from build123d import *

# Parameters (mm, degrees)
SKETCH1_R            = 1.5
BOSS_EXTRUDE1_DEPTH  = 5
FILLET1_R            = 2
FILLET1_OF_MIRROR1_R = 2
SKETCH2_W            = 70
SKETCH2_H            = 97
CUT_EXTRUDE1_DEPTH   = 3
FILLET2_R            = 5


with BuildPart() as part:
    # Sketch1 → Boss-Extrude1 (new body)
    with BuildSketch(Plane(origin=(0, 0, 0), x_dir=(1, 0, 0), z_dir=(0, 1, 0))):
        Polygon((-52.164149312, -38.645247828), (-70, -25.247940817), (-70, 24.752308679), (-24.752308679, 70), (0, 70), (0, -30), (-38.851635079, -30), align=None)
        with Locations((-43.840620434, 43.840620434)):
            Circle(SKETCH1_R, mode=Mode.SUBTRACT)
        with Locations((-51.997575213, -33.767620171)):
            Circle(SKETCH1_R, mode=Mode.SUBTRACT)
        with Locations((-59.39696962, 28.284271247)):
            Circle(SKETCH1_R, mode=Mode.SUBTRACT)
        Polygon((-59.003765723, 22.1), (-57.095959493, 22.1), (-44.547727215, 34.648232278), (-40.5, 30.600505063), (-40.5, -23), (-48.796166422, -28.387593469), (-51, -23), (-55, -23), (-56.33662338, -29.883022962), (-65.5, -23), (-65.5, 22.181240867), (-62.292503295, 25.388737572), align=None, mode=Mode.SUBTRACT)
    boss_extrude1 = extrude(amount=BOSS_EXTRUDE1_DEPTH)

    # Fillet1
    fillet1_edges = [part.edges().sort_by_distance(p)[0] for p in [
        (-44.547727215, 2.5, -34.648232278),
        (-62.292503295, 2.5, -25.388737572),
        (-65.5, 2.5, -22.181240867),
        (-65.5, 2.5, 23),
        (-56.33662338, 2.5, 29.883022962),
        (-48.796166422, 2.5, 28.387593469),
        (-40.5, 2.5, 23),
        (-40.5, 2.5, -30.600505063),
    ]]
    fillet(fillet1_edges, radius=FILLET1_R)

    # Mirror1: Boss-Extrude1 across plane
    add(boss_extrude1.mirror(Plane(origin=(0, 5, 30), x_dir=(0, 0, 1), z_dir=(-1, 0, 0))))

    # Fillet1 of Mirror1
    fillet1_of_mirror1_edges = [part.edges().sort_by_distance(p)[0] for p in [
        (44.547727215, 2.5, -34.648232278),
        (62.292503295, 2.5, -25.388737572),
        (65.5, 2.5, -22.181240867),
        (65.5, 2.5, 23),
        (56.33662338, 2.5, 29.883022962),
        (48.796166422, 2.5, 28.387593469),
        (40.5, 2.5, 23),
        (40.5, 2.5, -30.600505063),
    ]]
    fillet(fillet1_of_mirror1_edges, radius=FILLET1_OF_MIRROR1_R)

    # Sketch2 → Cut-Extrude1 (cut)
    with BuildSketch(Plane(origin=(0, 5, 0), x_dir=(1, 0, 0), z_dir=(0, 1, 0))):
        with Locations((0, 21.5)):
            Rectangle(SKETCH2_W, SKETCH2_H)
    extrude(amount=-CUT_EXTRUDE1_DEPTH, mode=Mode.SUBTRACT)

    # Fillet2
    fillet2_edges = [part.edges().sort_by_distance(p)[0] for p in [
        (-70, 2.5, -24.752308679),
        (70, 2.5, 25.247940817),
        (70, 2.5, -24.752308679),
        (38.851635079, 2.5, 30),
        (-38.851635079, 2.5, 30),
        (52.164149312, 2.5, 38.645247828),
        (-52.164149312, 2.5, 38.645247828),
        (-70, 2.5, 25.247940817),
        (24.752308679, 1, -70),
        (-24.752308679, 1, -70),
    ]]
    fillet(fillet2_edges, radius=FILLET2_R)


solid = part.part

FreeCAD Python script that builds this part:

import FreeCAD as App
import Part
import Sketcher
Q = App.Units.Quantity


def edges_at(feature, points):
    """Names of the edges that pass closest to the given points."""
    edges = feature.Shape.Edges
    near = lambda p: min(range(len(edges)), key=lambda i: edges[i].distToShape(Part.Vertex(*p))[0])
    return sorted({f"Edge{near(p) + 1}" for p in points})

doc = App.newDocument("Part")
params = doc.addObject("Spreadsheet::Sheet", "Params")
for row, (alias, value) in enumerate([
    ("sketch1_diameter", "3 mm"),
    ("sketch1_width", "4 mm"),
    ("sketch1_height", "100 mm"),
    ("pad1_length", "5 mm"),
    ("fillet_radius", "2 mm"),
    ("fillet2_radius", "2 mm"),
    ("sketch2_width", "70 mm"),
    ("sketch2_height", "97 mm"),
    ("pocket1_length", "3 mm"),
    ("fillet3_radius", "5 mm"),
], start=1):
    params.set(f"A{row}", alias)
    params.set(f"B{row}", "=" + value)
    params.setAlias(f"B{row}", alias)

body = doc.addObject("PartDesign::Body", "Body")

# Sketch on XZ plane
sketch1 = body.newObject("Sketcher::SketchObject", "Sketch")
sketch1.AttachmentSupport = (doc.getObject("XZ_Plane"), [""])
sketch1.MapMode = "FlatFace"
sketch1.addGeometry(Part.LineSegment(App.Vector(-70, 25.2, 0), App.Vector(-52.2, 38.6, 0)), False)
sketch1.addGeometry(Part.LineSegment(App.Vector(-52.2, 38.6, 0), App.Vector(-38.9, 30, 0)), False)
sketch1.addGeometry(Part.LineSegment(App.Vector(-38.9, 30, 0), App.Vector(0, 30, 0)), False)
sketch1.addGeometry(Part.LineSegment(App.Vector(0, 30, 0), App.Vector(0, -70, 0)), False)
sketch1.addGeometry(Part.LineSegment(App.Vector(0, -70, 0), App.Vector(-24.8, -70, 0)), False)
sketch1.addGeometry(Part.LineSegment(App.Vector(-24.8, -70, 0), App.Vector(-70, -24.8, 0)), False)
sketch1.addGeometry(Part.LineSegment(App.Vector(-70, -24.8, 0), App.Vector(-70, 25.2, 0)), False)
sketch1.addGeometry(Part.Circle(App.Vector(-52, 33.8, 0), App.Vector(0, 0, 1), 1.5), False)
sketch1.addGeometry(Part.LineSegment(App.Vector(-59, -22.1, 0), App.Vector(-57.1, -22.1, 0)), False)
sketch1.addGeometry(Part.LineSegment(App.Vector(-57.1, -22.1, 0), App.Vector(-44.5, -34.6, 0)), False)
sketch1.addGeometry(Part.LineSegment(App.Vector(-44.5, -34.6, 0), App.Vector(-40.5, -30.6, 0)), False)
sketch1.addGeometry(Part.LineSegment(App.Vector(-40.5, -30.6, 0), App.Vector(-40.5, 23, 0)), False)
sketch1.addGeometry(Part.LineSegment(App.Vector(-40.5, 23, 0), App.Vector(-48.8, 28.4, 0)), False)
sketch1.addGeometry(Part.LineSegment(App.Vector(-48.8, 28.4, 0), App.Vector(-51, 23, 0)), False)
sketch1.addGeometry(Part.LineSegment(App.Vector(-51, 23, 0), App.Vector(-55, 23, 0)), False)
sketch1.addGeometry(Part.LineSegment(App.Vector(-55, 23, 0), App.Vector(-56.3, 29.9, 0)), False)
sketch1.addGeometry(Part.LineSegment(App.Vector(-56.3, 29.9, 0), App.Vector(-65.5, 23, 0)), False)
sketch1.addGeometry(Part.LineSegment(App.Vector(-65.5, 23, 0), App.Vector(-65.5, -22.2, 0)), False)
sketch1.addGeometry(Part.LineSegment(App.Vector(-65.5, -22.2, 0), App.Vector(-62.3, -25.4, 0)), False)
sketch1.addGeometry(Part.LineSegment(App.Vector(-62.3, -25.4, 0), App.Vector(-59, -22.1, 0)), False)
sketch1.addGeometry(Part.Circle(App.Vector(-43.8, -43.8, 0), App.Vector(0, 0, 1), 1.5), False)
sketch1.addGeometry(Part.Circle(App.Vector(-59.4, -28.3, 0), App.Vector(0, 0, 1), 1.5), False)
sketch1.addConstraint(Sketcher.Constraint("Coincident", 0, 2, 1, 1))
sketch1.addConstraint(Sketcher.Constraint("Coincident", 1, 2, 2, 1))
sketch1.addConstraint(Sketcher.Constraint("Coincident", 2, 2, 3, 1))
sketch1.addConstraint(Sketcher.Constraint("Coincident", 3, 2, 4, 1))
sketch1.addConstraint(Sketcher.Constraint("Coincident", 4, 2, 5, 1))
sketch1.addConstraint(Sketcher.Constraint("Coincident", 5, 2, 6, 1))
sketch1.addConstraint(Sketcher.Constraint("Coincident", 6, 2, 0, 1))
sketch1.addConstraint(Sketcher.Constraint("Coincident", 8, 2, 9, 1))
sketch1.addConstraint(Sketcher.Constraint("Coincident", 9, 2, 10, 1))
sketch1.addConstraint(Sketcher.Constraint("Coincident", 10, 2, 11, 1))
sketch1.addConstraint(Sketcher.Constraint("Coincident", 11, 2, 12, 1))
sketch1.addConstraint(Sketcher.Constraint("Coincident", 12, 2, 13, 1))
sketch1.addConstraint(Sketcher.Constraint("Coincident", 13, 2, 14, 1))
sketch1.addConstraint(Sketcher.Constraint("Coincident", 14, 2, 15, 1))
sketch1.addConstraint(Sketcher.Constraint("Coincident", 15, 2, 16, 1))
sketch1.addConstraint(Sketcher.Constraint("Coincident", 16, 2, 17, 1))
sketch1.addConstraint(Sketcher.Constraint("Coincident", 17, 2, 18, 1))
sketch1.addConstraint(Sketcher.Constraint("Coincident", 18, 2, 19, 1))
sketch1.addConstraint(Sketcher.Constraint("Coincident", 19, 2, 8, 1))
sketch1.addConstraint(Sketcher.Constraint("Horizontal", 2))
sketch1.addConstraint(Sketcher.Constraint("Vertical", 3))
sketch1.addConstraint(Sketcher.Constraint("Horizontal", 4))
sketch1.addConstraint(Sketcher.Constraint("Vertical", 6))
sketch1.addConstraint(Sketcher.Constraint("Horizontal", 8))
sketch1.addConstraint(Sketcher.Constraint("Vertical", 11))
sketch1.addConstraint(Sketcher.Constraint("Horizontal", 14))
sketch1.addConstraint(Sketcher.Constraint("Vertical", 17))
sketch1.addConstraint(Sketcher.Constraint("Equal", 7, 20))
sketch1.addConstraint(Sketcher.Constraint("Equal", 20, 21))
sketch1.addConstraint(Sketcher.Constraint("PointOnObject", 2, 2, -2))
sketch1.addConstraint(Sketcher.Constraint("Parallel", 5, 9))
sketch1.addConstraint(Sketcher.Constraint("Perpendicular", 9, 10))
sketch1.addConstraint(Sketcher.Constraint("Parallel", 1, 12))
sketch1.addConstraint(Sketcher.Constraint("Parallel", 0, 16))
sketch1.addConstraint(Sketcher.Constraint("Perpendicular", 10, 18))
sketch1.addConstraint(Sketcher.Constraint("Perpendicular", 18, 19))
sketch1.addConstraint(Sketcher.Constraint("Horizontal", 11, 2, 13, 2))
sketch1.addConstraint(Sketcher.Constraint("Horizontal", 14, 2, 16, 2))
sketch1.addConstraint(Sketcher.Constraint("Diameter", 7, Q("3 mm")))
sketch1.addConstraint(Sketcher.Constraint("DistanceX", 14, 2, 14, 1, Q("4 mm")))
sketch1.addConstraint(Sketcher.Constraint("DistanceY", 3, 2, 3, 1, Q("100 mm")))
sketch1.addConstraint(Sketcher.Constraint("Angle", 1, Q("-33 deg")))
sketch1.addConstraint(Sketcher.Constraint("Angle", 5, Q("135 deg")))
sketch1.addConstraint(Sketcher.Constraint("DistanceY", -1, 1, 1, 2, Q("30 mm")))
sketch1.addConstraint(Sketcher.Constraint("DistanceX", 5, 2, -1, 1, Q("70 mm")))
sketch1.addConstraint(Sketcher.Constraint("DistanceY", -1, 1, 11, 2, Q("23 mm")))
sketch1.addConstraint(Sketcher.Constraint("DistanceX", 13, 2, -1, 1, Q("51 mm")))
sketch1.addConstraint(Sketcher.Constraint("DistanceX", 17, 2, 10, 2, Q("25 mm")))
sketch1.addConstraint(Sketcher.Constraint("DistanceY", 8, 2, -1, 1, Q("22.1 mm")))
sketch1.addConstraint(Sketcher.Constraint("DistanceX", 10, 2, -1, 1, Q("40.5 mm")))
sketch1.addConstraint(Sketcher.Constraint("Distance", 5, Q("63.989899 mm")))
sketch1.addConstraint(Sketcher.Constraint("DistanceY", 6, 1, 6, 2, Q("50.000249 mm")))
sketch1.addConstraint(Sketcher.Constraint("DistanceY", 17, 2, 17, 1, Q("45.181241 mm")))
sketch1.addConstraint(Sketcher.Constraint("Distance", 0, Q("22.307071 mm")))
sketch1.addConstraint(Sketcher.Constraint("Distance", 9, Q("17.74588 mm")))
sketch1.addConstraint(Sketcher.Constraint("Distance", 10, Q("5.724351 mm")))
sketch1.addConstraint(Sketcher.Constraint("Distance", 16, Q("11.460518 mm")))
sketch1.addConstraint(Sketcher.Constraint("DistanceX", 2, 1, 2, 2, Q("38.851635 mm")))
sketch1.addConstraint(Sketcher.Constraint("DistanceX", 8, 1, 8, 2, Q("1.907806 mm")))
sketch1.addConstraint(Sketcher.Constraint("DistanceY", -1, 1, 7, 3, Q("33.76762 mm")))
sketch1.addConstraint(Sketcher.Constraint("DistanceX", 20, 3, -1, 1, Q("43.84062 mm")))
sketch1.addConstraint(Sketcher.Constraint("DistanceY", 20, 3, -1, 1, Q("43.84062 mm")))
sketch1.addConstraint(Sketcher.Constraint("DistanceX", 21, 3, -1, 1, Q("59.39697 mm")))
sketch1.addConstraint(Sketcher.Constraint("DistanceY", 21, 3, -1, 1, Q("28.284271 mm")))
sketch1.addConstraint(Sketcher.Constraint("DistanceX", 7, 3, 1, 2, Q("13.14594 mm")))
sketch1.addConstraint(Sketcher.Constraint("DistanceX", 7, 3, 12, 2, Q("3.201409 mm")))
sketch1.setExpression("Constraints[38]", "Params.sketch1_diameter")
sketch1.setExpression("Constraints[39]", "Params.sketch1_width")
sketch1.setExpression("Constraints[40]", "Params.sketch1_height")
pad1 = body.newObject("PartDesign::Pad", "Pad")
pad1.Profile = sketch1
pad1.setExpression("Length", "Params.pad1_length")
pad1.Reversed = True
doc.recompute()

fillet = body.newObject("PartDesign::Fillet", "Fillet")
fillet.Base = (pad1, edges_at(pad1, [
    (-44.548, 2.5, -34.648),
    (-62.293, 2.5, -25.389),
    (-65.5, 2.5, -22.181),
    (-65.5, 2.5, 23),
    (-56.337, 2.5, 29.883),
    (-48.796, 2.5, 28.388),
    (-40.5, 2.5, 23),
    (-40.5, 2.5, -30.601),
]))
fillet.setExpression("Radius", "Params.fillet_radius")
doc.recompute()

mirrored = body.newObject("PartDesign::Mirrored", "Mirrored")
mirrored.Originals = [pad1]
mirrored.MirrorPlane = (doc.getObject("YZ_Plane"), [""])
body.Tip = mirrored
doc.recompute()

fillet2 = body.newObject("PartDesign::Fillet", "Fillet001")
fillet2.Base = (mirrored, edges_at(mirrored, [
    (44.548, 2.5, -34.648),
    (62.293, 2.5, -25.389),
    (65.5, 2.5, -22.181),
    (65.5, 2.5, 23),
    (56.337, 2.5, 29.883),
    (48.796, 2.5, 28.388),
    (40.5, 2.5, 23),
    (40.5, 2.5, -30.601),
]))
fillet2.setExpression("Radius", "Params.fillet2_radius")

# Sketch on XZ plane
sketch2 = body.newObject("Sketcher::SketchObject", "Sketch001")
sketch2.AttachmentSupport = (doc.getObject("XZ_Plane"), [""])
sketch2.MapMode = "FlatFace"
sketch2.AttachmentOffset = App.Placement(App.Vector(0, 0, -5), App.Rotation())
sketch2.addGeometry(Part.LineSegment(App.Vector(-35, -70, 0), App.Vector(-35, 27, 0)), False)
sketch2.addGeometry(Part.LineSegment(App.Vector(-35, 27, 0), App.Vector(35, 27, 0)), False)
sketch2.addGeometry(Part.LineSegment(App.Vector(35, 27, 0), App.Vector(35, -70, 0)), False)
sketch2.addGeometry(Part.LineSegment(App.Vector(35, -70, 0), App.Vector(-35, -70, 0)), False)
sketch2.addConstraint(Sketcher.Constraint("Coincident", 0, 2, 1, 1))
sketch2.addConstraint(Sketcher.Constraint("Coincident", 1, 2, 2, 1))
sketch2.addConstraint(Sketcher.Constraint("Coincident", 2, 2, 3, 1))
sketch2.addConstraint(Sketcher.Constraint("Coincident", 3, 2, 0, 1))
sketch2.addConstraint(Sketcher.Constraint("Vertical", 0))
sketch2.addConstraint(Sketcher.Constraint("Horizontal", 1))
sketch2.addConstraint(Sketcher.Constraint("Vertical", 2))
sketch2.addConstraint(Sketcher.Constraint("Horizontal", 3))
sketch2.addConstraint(Sketcher.Constraint("DistanceX", 1, 1, 1, 2, Q("70 mm")))
sketch2.addConstraint(Sketcher.Constraint("DistanceY", 0, 1, 0, 2, Q("97 mm")))
sketch2.addConstraint(Sketcher.Constraint("DistanceX", 0, 2, -1, 1, Q("35 mm")))
sketch2.addConstraint(Sketcher.Constraint("DistanceY", -1, 1, 0, 2, Q("27 mm")))
sketch2.setExpression("Constraints[8]", "Params.sketch2_width")
sketch2.setExpression("Constraints[9]", "Params.sketch2_height")
pocket1 = body.newObject("PartDesign::Pocket", "Pocket")
pocket1.Profile = sketch2
pocket1.setExpression("Length", "Params.pocket1_length")
pocket1.Reversed = True
doc.recompute()

fillet3 = body.newObject("PartDesign::Fillet", "Fillet002")
fillet3.Base = (pocket1, edges_at(pocket1, [
    (-70, 2.5, -24.752),
    (70, 2.5, 25.248),
    (70, 2.5, -24.752),
    (38.852, 2.5, 30),
    (-38.852, 2.5, 30),
    (52.164, 2.5, 38.645),
    (-52.164, 2.5, 38.645),
    (-70, 2.5, 25.248),
    (24.752, 1, -70),
    (-24.752, 1, -70),
]))
fillet3.setExpression("Radius", "Params.fillet3_radius")

doc.recompute()
